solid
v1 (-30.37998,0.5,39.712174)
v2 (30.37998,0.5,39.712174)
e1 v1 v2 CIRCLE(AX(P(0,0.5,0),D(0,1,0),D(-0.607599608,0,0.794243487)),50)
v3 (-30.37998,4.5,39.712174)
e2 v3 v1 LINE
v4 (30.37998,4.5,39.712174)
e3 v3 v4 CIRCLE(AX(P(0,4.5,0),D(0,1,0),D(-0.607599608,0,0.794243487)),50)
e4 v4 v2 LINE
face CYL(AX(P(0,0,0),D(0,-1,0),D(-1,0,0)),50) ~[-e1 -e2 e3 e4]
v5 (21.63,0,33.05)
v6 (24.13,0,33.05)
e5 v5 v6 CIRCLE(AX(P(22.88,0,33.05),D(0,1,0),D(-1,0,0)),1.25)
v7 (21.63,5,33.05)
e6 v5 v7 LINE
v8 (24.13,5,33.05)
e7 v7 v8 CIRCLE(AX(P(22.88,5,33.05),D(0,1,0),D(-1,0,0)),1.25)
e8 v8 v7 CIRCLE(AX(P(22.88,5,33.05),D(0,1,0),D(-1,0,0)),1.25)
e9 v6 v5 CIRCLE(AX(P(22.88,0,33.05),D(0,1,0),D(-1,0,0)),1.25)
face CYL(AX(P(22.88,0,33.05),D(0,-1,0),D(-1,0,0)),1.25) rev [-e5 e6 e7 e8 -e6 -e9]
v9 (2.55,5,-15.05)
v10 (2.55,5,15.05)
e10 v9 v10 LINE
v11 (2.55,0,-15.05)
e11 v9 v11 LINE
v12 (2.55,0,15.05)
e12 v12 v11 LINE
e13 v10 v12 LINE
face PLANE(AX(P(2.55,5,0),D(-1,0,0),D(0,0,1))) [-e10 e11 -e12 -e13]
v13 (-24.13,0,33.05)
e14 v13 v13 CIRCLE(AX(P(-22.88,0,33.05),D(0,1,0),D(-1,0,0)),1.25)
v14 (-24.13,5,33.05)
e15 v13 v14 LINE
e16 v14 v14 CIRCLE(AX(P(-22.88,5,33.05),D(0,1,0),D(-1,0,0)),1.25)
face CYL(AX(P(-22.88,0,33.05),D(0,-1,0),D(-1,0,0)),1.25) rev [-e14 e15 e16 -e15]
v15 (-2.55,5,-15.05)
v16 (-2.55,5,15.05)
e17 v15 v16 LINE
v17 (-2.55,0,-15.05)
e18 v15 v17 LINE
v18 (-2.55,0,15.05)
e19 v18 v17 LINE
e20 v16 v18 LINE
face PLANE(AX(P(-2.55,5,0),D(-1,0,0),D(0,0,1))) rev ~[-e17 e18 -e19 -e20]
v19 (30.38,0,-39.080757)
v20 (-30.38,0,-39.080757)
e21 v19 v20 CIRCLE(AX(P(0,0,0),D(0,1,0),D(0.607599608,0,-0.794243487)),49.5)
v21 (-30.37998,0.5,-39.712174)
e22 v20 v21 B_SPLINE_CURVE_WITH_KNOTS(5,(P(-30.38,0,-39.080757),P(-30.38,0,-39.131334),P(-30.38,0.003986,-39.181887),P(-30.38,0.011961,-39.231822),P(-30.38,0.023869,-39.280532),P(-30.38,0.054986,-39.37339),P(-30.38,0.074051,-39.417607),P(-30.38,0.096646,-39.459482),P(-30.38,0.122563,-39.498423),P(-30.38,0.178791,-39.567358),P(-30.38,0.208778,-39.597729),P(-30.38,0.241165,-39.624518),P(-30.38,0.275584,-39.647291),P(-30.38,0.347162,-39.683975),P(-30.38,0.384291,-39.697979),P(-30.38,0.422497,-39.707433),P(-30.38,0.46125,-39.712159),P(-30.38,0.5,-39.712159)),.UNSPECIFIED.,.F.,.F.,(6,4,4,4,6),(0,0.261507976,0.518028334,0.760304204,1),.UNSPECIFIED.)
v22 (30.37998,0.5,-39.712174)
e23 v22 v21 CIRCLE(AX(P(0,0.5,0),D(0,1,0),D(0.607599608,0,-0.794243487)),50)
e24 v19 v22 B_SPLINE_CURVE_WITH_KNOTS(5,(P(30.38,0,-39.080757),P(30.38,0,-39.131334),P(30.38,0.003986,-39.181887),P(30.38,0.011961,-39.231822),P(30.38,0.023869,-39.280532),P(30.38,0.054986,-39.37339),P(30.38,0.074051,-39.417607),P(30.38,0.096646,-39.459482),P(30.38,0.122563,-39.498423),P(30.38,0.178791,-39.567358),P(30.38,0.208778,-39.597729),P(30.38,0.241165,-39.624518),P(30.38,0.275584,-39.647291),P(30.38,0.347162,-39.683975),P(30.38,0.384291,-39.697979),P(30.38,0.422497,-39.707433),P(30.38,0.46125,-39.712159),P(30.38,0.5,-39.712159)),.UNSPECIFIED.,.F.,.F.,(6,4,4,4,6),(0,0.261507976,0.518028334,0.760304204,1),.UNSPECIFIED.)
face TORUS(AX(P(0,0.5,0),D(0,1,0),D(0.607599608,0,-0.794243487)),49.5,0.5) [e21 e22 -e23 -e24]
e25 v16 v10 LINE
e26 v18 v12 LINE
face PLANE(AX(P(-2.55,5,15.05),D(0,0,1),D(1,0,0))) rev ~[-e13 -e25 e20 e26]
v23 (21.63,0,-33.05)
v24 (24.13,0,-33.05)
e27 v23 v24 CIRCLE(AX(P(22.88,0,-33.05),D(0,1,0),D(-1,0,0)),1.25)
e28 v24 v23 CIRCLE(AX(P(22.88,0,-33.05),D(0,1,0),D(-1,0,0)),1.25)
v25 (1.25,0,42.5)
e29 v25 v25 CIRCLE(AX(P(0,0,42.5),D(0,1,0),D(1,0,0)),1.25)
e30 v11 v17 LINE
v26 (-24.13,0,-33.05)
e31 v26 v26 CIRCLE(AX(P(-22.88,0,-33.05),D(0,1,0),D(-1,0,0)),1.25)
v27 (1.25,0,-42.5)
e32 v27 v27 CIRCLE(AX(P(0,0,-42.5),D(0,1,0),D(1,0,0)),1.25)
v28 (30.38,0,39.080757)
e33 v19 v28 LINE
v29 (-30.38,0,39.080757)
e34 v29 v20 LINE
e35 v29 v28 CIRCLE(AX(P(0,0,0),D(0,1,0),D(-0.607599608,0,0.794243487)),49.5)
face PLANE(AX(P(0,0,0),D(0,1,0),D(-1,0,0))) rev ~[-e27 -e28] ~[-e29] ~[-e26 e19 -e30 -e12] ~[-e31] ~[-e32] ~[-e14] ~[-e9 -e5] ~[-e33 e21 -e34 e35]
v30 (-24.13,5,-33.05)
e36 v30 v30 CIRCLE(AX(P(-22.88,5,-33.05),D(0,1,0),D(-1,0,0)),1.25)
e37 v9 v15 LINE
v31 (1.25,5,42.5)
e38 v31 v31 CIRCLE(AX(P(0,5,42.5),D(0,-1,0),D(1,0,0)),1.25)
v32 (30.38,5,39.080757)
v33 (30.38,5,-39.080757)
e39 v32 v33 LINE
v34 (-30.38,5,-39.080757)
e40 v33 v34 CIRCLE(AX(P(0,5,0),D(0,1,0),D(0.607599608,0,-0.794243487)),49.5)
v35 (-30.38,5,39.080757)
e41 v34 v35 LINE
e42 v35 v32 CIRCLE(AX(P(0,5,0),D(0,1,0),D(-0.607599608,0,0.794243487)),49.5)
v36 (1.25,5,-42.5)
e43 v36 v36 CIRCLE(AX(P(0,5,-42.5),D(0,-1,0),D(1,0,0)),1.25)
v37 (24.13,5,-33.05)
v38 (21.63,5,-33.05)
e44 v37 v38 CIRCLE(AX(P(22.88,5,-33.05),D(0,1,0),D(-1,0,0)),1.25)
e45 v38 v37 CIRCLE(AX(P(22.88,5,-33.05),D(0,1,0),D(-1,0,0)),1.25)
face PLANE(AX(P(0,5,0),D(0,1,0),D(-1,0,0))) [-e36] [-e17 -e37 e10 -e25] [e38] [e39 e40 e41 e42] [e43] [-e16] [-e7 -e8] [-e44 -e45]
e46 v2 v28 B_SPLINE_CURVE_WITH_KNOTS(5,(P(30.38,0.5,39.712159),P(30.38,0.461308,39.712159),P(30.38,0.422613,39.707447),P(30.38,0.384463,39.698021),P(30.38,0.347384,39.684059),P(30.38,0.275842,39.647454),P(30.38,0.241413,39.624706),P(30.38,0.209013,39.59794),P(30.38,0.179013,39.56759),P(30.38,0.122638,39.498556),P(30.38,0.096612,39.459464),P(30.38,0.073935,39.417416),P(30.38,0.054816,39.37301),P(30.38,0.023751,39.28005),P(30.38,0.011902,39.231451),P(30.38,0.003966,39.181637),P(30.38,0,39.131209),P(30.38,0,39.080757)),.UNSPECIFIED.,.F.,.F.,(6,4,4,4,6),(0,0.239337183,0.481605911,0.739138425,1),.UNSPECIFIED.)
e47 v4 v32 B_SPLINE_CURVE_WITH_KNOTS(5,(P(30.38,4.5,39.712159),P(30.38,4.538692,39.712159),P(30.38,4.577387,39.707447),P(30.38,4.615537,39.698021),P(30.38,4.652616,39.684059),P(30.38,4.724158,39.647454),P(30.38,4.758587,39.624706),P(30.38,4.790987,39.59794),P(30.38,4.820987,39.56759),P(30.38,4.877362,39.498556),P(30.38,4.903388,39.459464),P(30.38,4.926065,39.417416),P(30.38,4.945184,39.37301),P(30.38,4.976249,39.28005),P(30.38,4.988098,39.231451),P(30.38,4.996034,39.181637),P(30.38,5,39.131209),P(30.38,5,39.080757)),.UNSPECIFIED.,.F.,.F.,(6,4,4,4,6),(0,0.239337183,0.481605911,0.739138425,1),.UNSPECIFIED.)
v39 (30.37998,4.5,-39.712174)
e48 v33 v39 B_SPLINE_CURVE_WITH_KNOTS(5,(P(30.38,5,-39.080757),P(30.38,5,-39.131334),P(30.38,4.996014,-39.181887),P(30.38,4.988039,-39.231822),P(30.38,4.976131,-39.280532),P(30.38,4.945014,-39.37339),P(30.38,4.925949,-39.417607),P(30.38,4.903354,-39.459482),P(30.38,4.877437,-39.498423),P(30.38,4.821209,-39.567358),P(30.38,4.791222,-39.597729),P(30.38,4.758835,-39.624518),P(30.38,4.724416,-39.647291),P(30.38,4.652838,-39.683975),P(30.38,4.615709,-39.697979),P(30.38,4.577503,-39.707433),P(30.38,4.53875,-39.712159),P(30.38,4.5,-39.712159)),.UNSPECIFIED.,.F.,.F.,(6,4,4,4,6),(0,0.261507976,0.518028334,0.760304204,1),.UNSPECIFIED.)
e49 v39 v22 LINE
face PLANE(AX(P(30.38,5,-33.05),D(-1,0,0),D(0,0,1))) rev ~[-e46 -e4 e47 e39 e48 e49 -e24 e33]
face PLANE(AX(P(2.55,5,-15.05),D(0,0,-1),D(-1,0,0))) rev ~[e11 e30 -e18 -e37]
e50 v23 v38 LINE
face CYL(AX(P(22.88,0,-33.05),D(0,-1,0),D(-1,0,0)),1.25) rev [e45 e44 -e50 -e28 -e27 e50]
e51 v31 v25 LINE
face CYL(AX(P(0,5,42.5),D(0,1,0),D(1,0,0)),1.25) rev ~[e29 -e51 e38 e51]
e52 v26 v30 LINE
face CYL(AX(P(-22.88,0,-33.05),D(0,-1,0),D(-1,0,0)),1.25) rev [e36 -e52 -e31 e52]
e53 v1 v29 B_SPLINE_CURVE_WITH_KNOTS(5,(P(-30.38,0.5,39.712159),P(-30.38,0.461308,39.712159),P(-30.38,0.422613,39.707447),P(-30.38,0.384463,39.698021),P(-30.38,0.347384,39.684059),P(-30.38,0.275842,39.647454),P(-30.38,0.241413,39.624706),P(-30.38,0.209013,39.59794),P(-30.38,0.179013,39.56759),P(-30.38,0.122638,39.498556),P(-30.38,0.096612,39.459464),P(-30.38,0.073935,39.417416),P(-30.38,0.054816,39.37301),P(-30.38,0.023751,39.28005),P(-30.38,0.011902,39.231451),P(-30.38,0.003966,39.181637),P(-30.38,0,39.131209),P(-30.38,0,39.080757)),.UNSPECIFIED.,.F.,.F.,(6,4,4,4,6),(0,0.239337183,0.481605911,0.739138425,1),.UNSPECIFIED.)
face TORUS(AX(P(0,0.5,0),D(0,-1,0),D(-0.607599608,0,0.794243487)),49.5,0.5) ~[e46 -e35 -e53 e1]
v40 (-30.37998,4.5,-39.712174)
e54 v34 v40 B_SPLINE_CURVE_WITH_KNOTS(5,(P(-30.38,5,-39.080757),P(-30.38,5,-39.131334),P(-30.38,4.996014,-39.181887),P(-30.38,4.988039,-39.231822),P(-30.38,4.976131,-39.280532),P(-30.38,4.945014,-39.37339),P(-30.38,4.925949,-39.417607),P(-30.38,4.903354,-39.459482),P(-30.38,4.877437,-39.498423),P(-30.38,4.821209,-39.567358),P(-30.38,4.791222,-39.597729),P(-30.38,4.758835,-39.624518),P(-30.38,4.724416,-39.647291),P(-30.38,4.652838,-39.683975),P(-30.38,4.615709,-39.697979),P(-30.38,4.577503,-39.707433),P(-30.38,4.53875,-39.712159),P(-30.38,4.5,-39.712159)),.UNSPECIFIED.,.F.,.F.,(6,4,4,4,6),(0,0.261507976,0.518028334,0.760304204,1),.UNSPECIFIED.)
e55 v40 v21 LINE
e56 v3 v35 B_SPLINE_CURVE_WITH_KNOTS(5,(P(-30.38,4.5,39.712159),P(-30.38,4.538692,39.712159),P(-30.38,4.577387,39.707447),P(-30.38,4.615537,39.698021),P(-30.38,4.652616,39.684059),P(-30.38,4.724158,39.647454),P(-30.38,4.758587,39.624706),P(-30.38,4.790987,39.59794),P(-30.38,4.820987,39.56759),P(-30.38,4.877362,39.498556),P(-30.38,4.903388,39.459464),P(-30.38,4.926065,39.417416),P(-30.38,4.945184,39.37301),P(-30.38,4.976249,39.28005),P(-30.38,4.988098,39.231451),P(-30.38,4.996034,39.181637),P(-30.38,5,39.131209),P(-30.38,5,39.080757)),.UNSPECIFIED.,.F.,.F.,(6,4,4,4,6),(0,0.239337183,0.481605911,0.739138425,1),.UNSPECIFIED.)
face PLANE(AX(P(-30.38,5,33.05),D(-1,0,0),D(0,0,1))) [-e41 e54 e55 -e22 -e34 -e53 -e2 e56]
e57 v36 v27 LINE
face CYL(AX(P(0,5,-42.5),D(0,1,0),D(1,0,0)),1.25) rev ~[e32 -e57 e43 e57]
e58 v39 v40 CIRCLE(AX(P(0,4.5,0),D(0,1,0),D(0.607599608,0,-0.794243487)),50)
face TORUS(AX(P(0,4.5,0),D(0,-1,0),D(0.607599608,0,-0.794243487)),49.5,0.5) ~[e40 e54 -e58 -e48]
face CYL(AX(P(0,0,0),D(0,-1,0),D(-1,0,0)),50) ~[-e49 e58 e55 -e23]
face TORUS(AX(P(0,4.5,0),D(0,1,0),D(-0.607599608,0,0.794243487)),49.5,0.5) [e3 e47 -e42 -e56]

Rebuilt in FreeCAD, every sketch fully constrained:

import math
import FreeCAD as App
import Part
import Sketcher
from FreeCAD import Vector
Q = App.Units.Quantity


def edges_at(feature, points):
    """Names of the edges that pass closest to the given points."""
    edges = feature.Shape.Edges
    near = lambda p: min(range(len(edges)), key=lambda i: edges[i].distToShape(Part.Vertex(*p))[0])
    return sorted({f"Edge{near(p) + 1}" for p in points})

doc = App.newDocument("Part")
body = doc.addObject("PartDesign::Body", "Body")

# Sketch on XZ plane
sketch1 = body.newObject("Sketcher::SketchObject", "Sketch")
sketch1.AttachmentSupport = (doc.getObject("XZ_Plane"), [""])
sketch1.MapMode = "FlatFace"
sketch1.addGeometry([
    Part.Circle(Vector(0, 0, 0), Vector(0, 0, 1), 50),  # 0
    Part.Circle(Vector(22.9, -33, 0), Vector(0, 0, 1), 1.2),  # 1
    Part.Circle(Vector(-22.9, -33, 0), Vector(0, 0, 1), 1.2),  # 2
    Part.Circle(Vector(22.9, 33, 0), Vector(0, 0, 1), 1.2),  # 3
    Part.Circle(Vector(-22.9, 33, 0), Vector(0, 0, 1), 1.2),  # 4
], False)
sketch1.addConstraint([
    Sketcher.Constraint("Coincident", 0, 3, -1, 1),
    Sketcher.Constraint("Equal", 1, 2),
    Sketcher.Constraint("Equal", 2, 3),
    Sketcher.Constraint("Equal", 3, 4),
    Sketcher.Constraint("Symmetric", 2, 3, 3, 3, -1, 1),
    Sketcher.Constraint("Symmetric", 1, 3, 4, 3, -1, 1),
    Sketcher.Constraint("Symmetric", 1, 3, 2, 3, -2),
    Sketcher.Constraint("Diameter", 0, Q("100 mm")),
    Sketcher.Constraint("Diameter", 1, Q("2.5 mm")),
    Sketcher.Constraint("DistanceY", 1, 3, 3, 3, Q("66.1 mm")),
    Sketcher.Constraint("DistanceX", -1, 1, 1, 3, Q("22.88 mm")),
])
pad1 = body.newObject("PartDesign::Pad", "Pad")
pad1.Profile = sketch1
pad1.Length = 5
pad1.Reversed = True

# Sketch on XZ plane
sketch2 = body.newObject("Sketcher::SketchObject", "Sketch001")
sketch2.AttachmentSupport = (doc.getObject("XZ_Plane"), [""])
sketch2.MapMode = "FlatFace"
sketch2.AttachmentOffset = App.Placement(Vector(0, 0, -5), App.Rotation())
sketch2.addGeometry([
    Part.LineSegment(Vector(3, 15, 0), Vector(3, -15, 0)),
    Part.LineSegment(Vector(3, -15, 0), Vector(-3, -15, 0)),
    Part.LineSegment(Vector(-3, -15, 0), Vector(-3, 15, 0)),
    Part.LineSegment(Vector(-3, 15, 0), Vector(3, 15, 0)),
], False)
sketch2.addConstraint([
    Sketcher.Constraint("Coincident", 0, 2, 1, 1),
    Sketcher.Constraint("Coincident", 1, 2, 2, 1),
    Sketcher.Constraint("Coincident", 2, 2, 3, 1),
    Sketcher.Constraint("Coincident", 3, 2, 0, 1),
    Sketcher.Constraint("Vertical", 0),
    Sketcher.Constraint("Horizontal", 1),
    Sketcher.Constraint("Vertical", 2),
    Sketcher.Constraint("Horizontal", 3),
    Sketcher.Constraint("Symmetric", 0, 2, 2, 2, -1, 1),
    Sketcher.Constraint("DistanceX", 1, 2, 1, 1, Q("5.1 mm")),
    Sketcher.Constraint("DistanceY", 0, 2, 0, 1, Q("30.1 mm")),
])
pocket1 = body.newObject("PartDesign::Pocket", "Pocket")
pocket1.Profile = sketch2
pocket1.Length = 5
pocket1.Reversed = True

# Sketch on XZ plane
sketch3 = body.newObject("Sketcher::SketchObject", "Sketch002")
sketch3.AttachmentSupport = (doc.getObject("XZ_Plane"), [""])
sketch3.MapMode = "FlatFace"
sketch3.AttachmentOffset = App.Placement(Vector(0, 0, -5), App.Rotation())
sketch3.addGeometry([
    Part.LineSegment(Vector(-30, 40, 0), Vector(-30, -40, 0)),
    Part.ArcOfCircle(Part.Circle(Vector(0, 0, 0), Vector(0, 0, 1), 50), math.radians(127), math.radians(233)),
    Part.LineSegment(Vector(30, -40, 0), Vector(30, 40, 0)),
    Part.ArcOfCircle(Part.Circle(Vector(0, 0, 0), Vector(0, 0, 1), 50), math.radians(-53), math.radians(53)),
], False)
sketch3.addConstraint([
    Sketcher.Constraint("Coincident", 0, 1, 1, 1),
    Sketcher.Constraint("Coincident", 1, 2, 0, 2),
    Sketcher.Constraint("Coincident", 2, 1, 3, 1),
    Sketcher.Constraint("Coincident", 3, 2, 2, 2),
    Sketcher.Constraint("Vertical", 0),
    Sketcher.Constraint("Vertical", 2),
    Sketcher.Constraint("Coincident", 1, 3, -1, 1),
    Sketcher.Constraint("Coincident", 3, 3, -1, 1),
    Sketcher.Constraint("Equal", 1, 3),
    Sketcher.Constraint("Horizontal", 1, 2, 2, 1),
    Sketcher.Constraint("Radius", 1, Q("50 mm")),
    Sketcher.Constraint("DistanceX", 0, 1, -1, 1, Q("30.38 mm")),
])
pocket2 = body.newObject("PartDesign::Pocket", "Pocket001")
pocket2.Profile = sketch3
pocket2.Length = 5
pocket2.Reversed = True

# Sketch on XZ plane
sketch4 = body.newObject("Sketcher::SketchObject", "Sketch003")
sketch4.AttachmentSupport = (doc.getObject("XZ_Plane"), [""])
sketch4.MapMode = "FlatFace"
sketch4.AttachmentOffset = App.Placement(Vector(0, 0, -5), App.Rotation())
sketch4.addGeometry([
    Part.Circle(Vector(0, 42.5, 0), Vector(0, 0, 1), 1.2),
    Part.Circle(Vector(0, -42.5, 0), Vector(0, 0, 1), 1.2),
], False)
sketch4.addConstraint([
    Sketcher.Constraint("Equal", 0, 1),
    Sketcher.Constraint("Symmetric", 0, 3, 1, 3, -1, 1),
    Sketcher.Constraint("PointOnObject", 0, 3, -2),
    Sketcher.Constraint("Diameter", 0, Q("2.5 mm")),
    Sketcher.Constraint("DistanceY", 1, 3, 0, 3, Q("85 mm")),
])
pocket3 = body.newObject("PartDesign::Pocket", "Pocket002")
pocket3.Profile = sketch4
pocket3.Length = 5
pocket3.Reversed = True
doc.recompute()

fillet = body.newObject("PartDesign::Fillet", "Fillet")
fillet.Base = (pocket3, edges_at(pocket3, [
    (0, 5, 50),
    (0, 5, -50),
    (0, 0, 50),
    (0, 0, -50),
]))
fillet.Radius = 0.5

doc.recompute()
